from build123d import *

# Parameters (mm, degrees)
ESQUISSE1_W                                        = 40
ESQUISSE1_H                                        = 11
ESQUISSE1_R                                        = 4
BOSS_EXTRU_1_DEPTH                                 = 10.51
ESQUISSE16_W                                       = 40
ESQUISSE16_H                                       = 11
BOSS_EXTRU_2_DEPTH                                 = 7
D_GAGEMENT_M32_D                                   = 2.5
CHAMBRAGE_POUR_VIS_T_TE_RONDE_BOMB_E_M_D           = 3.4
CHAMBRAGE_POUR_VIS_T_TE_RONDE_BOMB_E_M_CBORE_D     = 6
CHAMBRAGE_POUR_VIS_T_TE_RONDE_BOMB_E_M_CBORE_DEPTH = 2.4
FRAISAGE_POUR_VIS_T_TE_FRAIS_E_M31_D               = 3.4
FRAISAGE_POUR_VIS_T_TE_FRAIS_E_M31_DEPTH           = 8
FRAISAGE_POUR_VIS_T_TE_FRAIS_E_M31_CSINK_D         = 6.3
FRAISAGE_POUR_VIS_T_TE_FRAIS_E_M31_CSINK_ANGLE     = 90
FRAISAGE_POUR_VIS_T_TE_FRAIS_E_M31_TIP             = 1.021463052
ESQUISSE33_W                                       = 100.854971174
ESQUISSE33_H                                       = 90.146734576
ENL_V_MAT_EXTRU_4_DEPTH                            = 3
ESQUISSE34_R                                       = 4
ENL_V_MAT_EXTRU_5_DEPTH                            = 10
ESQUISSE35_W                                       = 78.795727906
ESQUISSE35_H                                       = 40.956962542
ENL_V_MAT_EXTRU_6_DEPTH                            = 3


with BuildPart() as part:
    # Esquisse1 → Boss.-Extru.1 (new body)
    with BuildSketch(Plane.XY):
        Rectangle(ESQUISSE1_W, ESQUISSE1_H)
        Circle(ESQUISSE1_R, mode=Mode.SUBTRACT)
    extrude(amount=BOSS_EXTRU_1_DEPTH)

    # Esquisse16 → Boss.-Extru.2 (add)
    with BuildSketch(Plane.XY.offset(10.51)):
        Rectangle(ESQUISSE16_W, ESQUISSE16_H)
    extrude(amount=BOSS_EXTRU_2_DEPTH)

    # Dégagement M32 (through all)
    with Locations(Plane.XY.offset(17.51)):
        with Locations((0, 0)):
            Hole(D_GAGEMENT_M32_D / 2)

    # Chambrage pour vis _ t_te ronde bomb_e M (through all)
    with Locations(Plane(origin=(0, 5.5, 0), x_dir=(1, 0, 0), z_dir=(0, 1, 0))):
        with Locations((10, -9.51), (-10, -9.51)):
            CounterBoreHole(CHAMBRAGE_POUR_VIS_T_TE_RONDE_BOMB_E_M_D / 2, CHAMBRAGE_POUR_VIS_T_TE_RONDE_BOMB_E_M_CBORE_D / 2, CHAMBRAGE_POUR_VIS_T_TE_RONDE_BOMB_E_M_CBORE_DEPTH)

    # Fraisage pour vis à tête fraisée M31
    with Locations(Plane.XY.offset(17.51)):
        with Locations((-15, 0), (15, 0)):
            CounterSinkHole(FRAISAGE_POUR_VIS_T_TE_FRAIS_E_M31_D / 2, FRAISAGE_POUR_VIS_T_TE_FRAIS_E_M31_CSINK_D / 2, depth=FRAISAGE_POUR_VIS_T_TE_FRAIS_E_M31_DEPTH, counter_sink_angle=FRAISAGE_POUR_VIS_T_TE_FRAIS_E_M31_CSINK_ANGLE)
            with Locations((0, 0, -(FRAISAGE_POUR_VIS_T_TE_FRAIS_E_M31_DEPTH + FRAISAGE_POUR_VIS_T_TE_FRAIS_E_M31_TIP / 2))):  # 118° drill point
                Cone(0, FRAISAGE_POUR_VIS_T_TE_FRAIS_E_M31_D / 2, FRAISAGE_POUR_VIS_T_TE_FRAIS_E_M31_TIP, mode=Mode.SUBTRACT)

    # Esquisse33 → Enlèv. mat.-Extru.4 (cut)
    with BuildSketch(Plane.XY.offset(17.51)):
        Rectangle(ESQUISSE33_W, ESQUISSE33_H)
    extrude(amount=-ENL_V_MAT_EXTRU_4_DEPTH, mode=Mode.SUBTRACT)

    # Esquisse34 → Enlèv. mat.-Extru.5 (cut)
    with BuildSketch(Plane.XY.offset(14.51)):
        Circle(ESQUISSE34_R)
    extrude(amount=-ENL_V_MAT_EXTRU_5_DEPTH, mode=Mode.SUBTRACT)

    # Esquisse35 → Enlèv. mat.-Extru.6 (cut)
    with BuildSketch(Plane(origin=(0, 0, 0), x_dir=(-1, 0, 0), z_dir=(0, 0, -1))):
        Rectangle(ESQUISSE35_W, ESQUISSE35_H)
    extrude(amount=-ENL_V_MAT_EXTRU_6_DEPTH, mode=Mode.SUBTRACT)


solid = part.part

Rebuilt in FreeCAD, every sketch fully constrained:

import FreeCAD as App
import Part
import Sketcher

V = App.Vector
Q = App.Units.Quantity

doc = App.newDocument("Part")
body = doc.addObject("PartDesign::Body", "Body")

sketch1 = body.newObject("Sketcher::SketchObject", "Sketch")
sketch1.AttachmentSupport = (doc.getObject("XY_Plane"), [""])
sketch1.MapMode = "FlatFace"
sketch1.addGeometry(Part.LineSegment(V(-20, 5.5, 0), V(-20, -5.5, 0)), False)
sketch1.addGeometry(Part.LineSegment(V(-20, -5.5, 0), V(20, -5.5, 0)), False)
sketch1.addGeometry(Part.LineSegment(V(20, -5.5, 0), V(20, 5.5, 0)), False)
sketch1.addGeometry(Part.LineSegment(V(20, 5.5, 0), V(-20, 5.5, 0)), False)
sketch1.addGeometry(Part.Circle(V(0, 0, 0), V(0, 0, 1), 4), False)
sketch1.addConstraint(Sketcher.Constraint("Coincident", 0, 2, 1, 1))
sketch1.addConstraint(Sketcher.Constraint("Coincident", 1, 2, 2, 1))
sketch1.addConstraint(Sketcher.Constraint("Coincident", 2, 2, 3, 1))
sketch1.addConstraint(Sketcher.Constraint("Coincident", 3, 2, 0, 1))
sketch1.addConstraint(Sketcher.Constraint("Vertical", 0))
sketch1.addConstraint(Sketcher.Constraint("Horizontal", 1))
sketch1.addConstraint(Sketcher.Constraint("Vertical", 2))
sketch1.addConstraint(Sketcher.Constraint("Horizontal", 3))
sketch1.addConstraint(Sketcher.Constraint("Coincident", 4, 3, -1, 1))
sketch1.addConstraint(Sketcher.Constraint("Symmetric", 0, 2, 2, 2, -1, 1))
sketch1.addConstraint(Sketcher.Constraint("Diameter", 4, Q("8 mm")))
sketch1.addConstraint(Sketcher.Constraint("DistanceX", 1, 1, 1, 2, Q("40 mm")))
sketch1.addConstraint(Sketcher.Constraint("DistanceY", 0, 2, 0, 1, Q("11 mm")))
pad1 = body.newObject("PartDesign::Pad", "Pad")
pad1.Profile = sketch1
pad1.Length = 10.51

sketch2 = body.newObject("Sketcher::SketchObject", "Sketch001")
sketch2.AttachmentSupport = (doc.getObject("XY_Plane"), [""])
sketch2.MapMode = "FlatFace"
sketch2.AttachmentOffset = App.Placement(V(0, 0, 10.51), App.Rotation())
sketch2.addGeometry(Part.LineSegment(V(-20, 6, 0), V(-20, -6, 0)), False)
sketch2.addGeometry(Part.LineSegment(V(-20, -6, 0), V(20, -6, 0)), False)
sketch2.addGeometry(Part.LineSegment(V(20, -6, 0), V(20, 6, 0)), False)
sketch2.addGeometry(Part.LineSegment(V(20, 6, 0), V(-20, 6, 0)), False)
sketch2.addConstraint(Sketcher.Constraint("Coincident", 0, 2, 1, 1))
sketch2.addConstraint(Sketcher.Constraint("Coincident", 1, 2, 2, 1))
sketch2.addConstraint(Sketcher.Constraint("Coincident", 2, 2, 3, 1))
sketch2.addConstraint(Sketcher.Constraint("Coincident", 3, 2, 0, 1))
sketch2.addConstraint(Sketcher.Constraint("Vertical", 0))
sketch2.addConstraint(Sketcher.Constraint("Horizontal", 1))
sketch2.addConstraint(Sketcher.Constraint("Vertical", 2))
sketch2.addConstraint(Sketcher.Constraint("Horizontal", 3))
sketch2.addConstraint(Sketcher.Constraint("Symmetric", 0, 2, 2, 2, -1, 1))
sketch2.addConstraint(Sketcher.Constraint("DistanceX", 1, 1, 1, 2, Q("40 mm")))
sketch2.addConstraint(Sketcher.Constraint("DistanceY", 0, 2, 0, 1, Q("11 mm")))
pad2 = body.newObject("PartDesign::Pad", "Pad001")
pad2.Profile = sketch2
pad2.Length = 7

sketch3 = body.newObject("Sketcher::SketchObject", "Sketch002")
sketch3.AttachmentSupport = (doc.getObject("XY_Plane"), [""])
sketch3.MapMode = "FlatFace"
sketch3.AttachmentOffset = App.Placement(V(0, 0, 17.51), App.Rotation())
sketch3.addGeometry(Part.Circle(V(0, 0, 0), V(0, 0, 1), 1.2), False)
sketch3.addConstraint(Sketcher.Constraint("Coincident", 0, 3, -1, 1))
sketch3.addConstraint(Sketcher.Constraint("Diameter", 0, Q("2.5 mm")))
doc.recompute()
hole = body.newObject("PartDesign::Hole", "Hole")
hole.Profile = sketch3
hole.ThreadType = "None"
hole.Diameter = 2.5
hole.DepthType = "ThroughAll"

sketch4 = body.newObject("Sketcher::SketchObject", "Sketch003")
sketch4.AttachmentSupport = (doc.getObject("XZ_Plane"), [""])
sketch4.MapMode = "FlatFace"
sketch4.AttachmentOffset = App.Placement(V(0, 0, -5.5), App.Rotation())
sketch4.addGeometry(Part.Circle(V(10, 9.5, 0), V(0, 0, 1), 1.7), False)
sketch4.addGeometry(Part.Circle(V(-10, 9.5, 0), V(0, 0, 1), 1.7), False)
sketch4.addConstraint(Sketcher.Constraint("Equal", 0, 1))
sketch4.addConstraint(Sketcher.Constraint("Symmetric", 0, 3, 1, 3, -2))
sketch4.addConstraint(Sketcher.Constraint("Diameter", 0, Q("3.4 mm")))
sketch4.addConstraint(Sketcher.Constraint("DistanceX", -1, 1, 0, 3, Q("10 mm")))
sketch4.addConstraint(Sketcher.Constraint("DistanceY", -1, 1, 0, 3, Q("9.51 mm")))
doc.recompute()
hole2 = body.newObject("PartDesign::Hole", "Hole001")
hole2.Profile = sketch4
hole2.ThreadType = "None"
hole2.Diameter = 3.4
hole2.DepthType = "ThroughAll"
hole2.HoleCutType = "Counterbore"
hole2.HoleCutDiameter = 6
hole2.HoleCutDepth = 2.4
hole2.Reversed = True

sketch5 = body.newObject("Sketcher::SketchObject", "Sketch004")
sketch5.AttachmentSupport = (doc.getObject("XY_Plane"), [""])
sketch5.MapMode = "FlatFace"
sketch5.AttachmentOffset = App.Placement(V(0, 0, 17.51), App.Rotation())
sketch5.addGeometry(Part.Circle(V(-15, 0, 0), V(0, 0, 1), 1.7), False)
sketch5.addGeometry(Part.Circle(V(15, 0, 0), V(0, 0, 1), 1.7), False)
sketch5.addConstraint(Sketcher.Constraint("Equal", 0, 1))
sketch5.addConstraint(Sketcher.Constraint("Symmetric", 0, 3, 1, 3, -1, 1))
sketch5.addConstraint(Sketcher.Constraint("PointOnObject", 0, 3, -1))
sketch5.addConstraint(Sketcher.Constraint("Diameter", 0, Q("3.4 mm")))
sketch5.addConstraint(Sketcher.Constraint("DistanceX", 0, 3, -1, 1, Q("15 mm")))
doc.recompute()
hole3 = body.newObject("PartDesign::Hole", "Hole002")
hole3.Profile = sketch5
hole3.ThreadType = "None"
hole3.Diameter = 3.4
hole3.DepthType = "Dimension"
hole3.Depth = 8
hole3.DrillPoint = "Angled"
hole3.DrillPointAngle = 118
hole3.HoleCutType = "Countersink"
hole3.HoleCutDiameter = 6.3
hole3.HoleCutCountersinkAngle = 90

sketch6 = body.newObject("Sketcher::SketchObject", "Sketch005")
sketch6.AttachmentSupport = (doc.getObject("XY_Plane"), [""])
sketch6.MapMode = "FlatFace"
sketch6.AttachmentOffset = App.Placement(V(0, 0, 17.51), App.Rotation())
sketch6.addGeometry(Part.LineSegment(V(-50, 45, 0), V(-50, -45, 0)), False)
sketch6.addGeometry(Part.LineSegment(V(-50, -45, 0), V(50, -45, 0)), False)
sketch6.addGeometry(Part.LineSegment(V(50, -45, 0), V(50, 45, 0)), False)
sketch6.addGeometry(Part.LineSegment(V(50, 45, 0), V(-50, 45, 0)), False)
sketch6.addConstraint(Sketcher.Constraint("Coincident", 0, 2, 1, 1))
sketch6.addConstraint(Sketcher.Constraint("Coincident", 1, 2, 2, 1))
sketch6.addConstraint(Sketcher.Constraint("Coincident", 2, 2, 3, 1))
sketch6.addConstraint(Sketcher.Constraint("Coincident", 3, 2, 0, 1))
sketch6.addConstraint(Sketcher.Constraint("Vertical", 0))
sketch6.addConstraint(Sketcher.Constraint("Horizontal", 1))
sketch6.addConstraint(Sketcher.Constraint("Vertical", 2))
sketch6.addConstraint(Sketcher.Constraint("Horizontal", 3))
sketch6.addConstraint(Sketcher.Constraint("Symmetric", 0, 2, 2, 2, -1, 1))
sketch6.addConstraint(Sketcher.Constraint("DistanceX", 1, 1, 1, 2, Q("100.854971 mm")))
sketch6.addConstraint(Sketcher.Constraint("DistanceY", 0, 2, 0, 1, Q("90.146735 mm")))
pocket1 = body.newObject("PartDesign::Pocket", "Pocket")
pocket1.Profile = sketch6
pocket1.Length = 3

sketch7 = body.newObject("Sketcher::SketchObject", "Sketch006")
sketch7.AttachmentSupport = (doc.getObject("XY_Plane"), [""])
sketch7.MapMode = "FlatFace"
sketch7.AttachmentOffset = App.Placement(V(0, 0, 14.51), App.Rotation())
sketch7.addGeometry(Part.Circle(V(0, 0, 0), V(0, 0, 1), 4), False)
sketch7.addConstraint(Sketcher.Constraint("Coincident", 0, 3, -1, 1))
sketch7.addConstraint(Sketcher.Constraint("Diameter", 0, Q("8 mm")))
pocket2 = body.newObject("PartDesign::Pocket", "Pocket001")
pocket2.Profile = sketch7
pocket2.Length = 10

sketch8 = body.newObject("Sketcher::SketchObject", "Sketch007")
sketch8.AttachmentSupport = (doc.getObject("XY_Plane"), [""])
sketch8.MapMode = "FlatFace"
sketch8.addGeometry(Part.LineSegment(V(39, 20, 0), V(39, -20, 0)), False)
sketch8.addGeometry(Part.LineSegment(V(39, -20, 0), V(-39, -20, 0)), False)
sketch8.addGeometry(Part.LineSegment(V(-39, -20, 0), V(-39, 20, 0)), False)
sketch8.addGeometry(Part.LineSegment(V(-39, 20, 0), V(39, 20, 0)), False)
sketch8.addConstraint(Sketcher.Constraint("Coincident", 0, 2, 1, 1))
sketch8.addConstraint(Sketcher.Constraint("Coincident", 1, 2, 2, 1))
sketch8.addConstraint(Sketcher.Constraint("Coincident", 2, 2, 3, 1))
sketch8.addConstraint(Sketcher.Constraint("Coincident", 3, 2, 0, 1))
sketch8.addConstraint(Sketcher.Constraint("Vertical", 0))
sketch8.addConstraint(Sketcher.Constraint("Horizontal", 1))
sketch8.addConstraint(Sketcher.Constraint("Vertical", 2))
sketch8.addConstraint(Sketcher.Constraint("Horizontal", 3))
sketch8.addConstraint(Sketcher.Constraint("Symmetric", 0, 2, 2, 2, -1, 1))
sketch8.addConstraint(Sketcher.Constraint("DistanceX", 1, 2, 1, 1, Q("78.795728 mm")))
sketch8.addConstraint(Sketcher.Constraint("DistanceY", 0, 2, 0, 1, Q("40.956963 mm")))
pocket3 = body.newObject("PartDesign::Pocket", "Pocket002")
pocket3.Profile = sketch8
pocket3.Length = 3
pocket3.Reversed = True

doc.recompute()
